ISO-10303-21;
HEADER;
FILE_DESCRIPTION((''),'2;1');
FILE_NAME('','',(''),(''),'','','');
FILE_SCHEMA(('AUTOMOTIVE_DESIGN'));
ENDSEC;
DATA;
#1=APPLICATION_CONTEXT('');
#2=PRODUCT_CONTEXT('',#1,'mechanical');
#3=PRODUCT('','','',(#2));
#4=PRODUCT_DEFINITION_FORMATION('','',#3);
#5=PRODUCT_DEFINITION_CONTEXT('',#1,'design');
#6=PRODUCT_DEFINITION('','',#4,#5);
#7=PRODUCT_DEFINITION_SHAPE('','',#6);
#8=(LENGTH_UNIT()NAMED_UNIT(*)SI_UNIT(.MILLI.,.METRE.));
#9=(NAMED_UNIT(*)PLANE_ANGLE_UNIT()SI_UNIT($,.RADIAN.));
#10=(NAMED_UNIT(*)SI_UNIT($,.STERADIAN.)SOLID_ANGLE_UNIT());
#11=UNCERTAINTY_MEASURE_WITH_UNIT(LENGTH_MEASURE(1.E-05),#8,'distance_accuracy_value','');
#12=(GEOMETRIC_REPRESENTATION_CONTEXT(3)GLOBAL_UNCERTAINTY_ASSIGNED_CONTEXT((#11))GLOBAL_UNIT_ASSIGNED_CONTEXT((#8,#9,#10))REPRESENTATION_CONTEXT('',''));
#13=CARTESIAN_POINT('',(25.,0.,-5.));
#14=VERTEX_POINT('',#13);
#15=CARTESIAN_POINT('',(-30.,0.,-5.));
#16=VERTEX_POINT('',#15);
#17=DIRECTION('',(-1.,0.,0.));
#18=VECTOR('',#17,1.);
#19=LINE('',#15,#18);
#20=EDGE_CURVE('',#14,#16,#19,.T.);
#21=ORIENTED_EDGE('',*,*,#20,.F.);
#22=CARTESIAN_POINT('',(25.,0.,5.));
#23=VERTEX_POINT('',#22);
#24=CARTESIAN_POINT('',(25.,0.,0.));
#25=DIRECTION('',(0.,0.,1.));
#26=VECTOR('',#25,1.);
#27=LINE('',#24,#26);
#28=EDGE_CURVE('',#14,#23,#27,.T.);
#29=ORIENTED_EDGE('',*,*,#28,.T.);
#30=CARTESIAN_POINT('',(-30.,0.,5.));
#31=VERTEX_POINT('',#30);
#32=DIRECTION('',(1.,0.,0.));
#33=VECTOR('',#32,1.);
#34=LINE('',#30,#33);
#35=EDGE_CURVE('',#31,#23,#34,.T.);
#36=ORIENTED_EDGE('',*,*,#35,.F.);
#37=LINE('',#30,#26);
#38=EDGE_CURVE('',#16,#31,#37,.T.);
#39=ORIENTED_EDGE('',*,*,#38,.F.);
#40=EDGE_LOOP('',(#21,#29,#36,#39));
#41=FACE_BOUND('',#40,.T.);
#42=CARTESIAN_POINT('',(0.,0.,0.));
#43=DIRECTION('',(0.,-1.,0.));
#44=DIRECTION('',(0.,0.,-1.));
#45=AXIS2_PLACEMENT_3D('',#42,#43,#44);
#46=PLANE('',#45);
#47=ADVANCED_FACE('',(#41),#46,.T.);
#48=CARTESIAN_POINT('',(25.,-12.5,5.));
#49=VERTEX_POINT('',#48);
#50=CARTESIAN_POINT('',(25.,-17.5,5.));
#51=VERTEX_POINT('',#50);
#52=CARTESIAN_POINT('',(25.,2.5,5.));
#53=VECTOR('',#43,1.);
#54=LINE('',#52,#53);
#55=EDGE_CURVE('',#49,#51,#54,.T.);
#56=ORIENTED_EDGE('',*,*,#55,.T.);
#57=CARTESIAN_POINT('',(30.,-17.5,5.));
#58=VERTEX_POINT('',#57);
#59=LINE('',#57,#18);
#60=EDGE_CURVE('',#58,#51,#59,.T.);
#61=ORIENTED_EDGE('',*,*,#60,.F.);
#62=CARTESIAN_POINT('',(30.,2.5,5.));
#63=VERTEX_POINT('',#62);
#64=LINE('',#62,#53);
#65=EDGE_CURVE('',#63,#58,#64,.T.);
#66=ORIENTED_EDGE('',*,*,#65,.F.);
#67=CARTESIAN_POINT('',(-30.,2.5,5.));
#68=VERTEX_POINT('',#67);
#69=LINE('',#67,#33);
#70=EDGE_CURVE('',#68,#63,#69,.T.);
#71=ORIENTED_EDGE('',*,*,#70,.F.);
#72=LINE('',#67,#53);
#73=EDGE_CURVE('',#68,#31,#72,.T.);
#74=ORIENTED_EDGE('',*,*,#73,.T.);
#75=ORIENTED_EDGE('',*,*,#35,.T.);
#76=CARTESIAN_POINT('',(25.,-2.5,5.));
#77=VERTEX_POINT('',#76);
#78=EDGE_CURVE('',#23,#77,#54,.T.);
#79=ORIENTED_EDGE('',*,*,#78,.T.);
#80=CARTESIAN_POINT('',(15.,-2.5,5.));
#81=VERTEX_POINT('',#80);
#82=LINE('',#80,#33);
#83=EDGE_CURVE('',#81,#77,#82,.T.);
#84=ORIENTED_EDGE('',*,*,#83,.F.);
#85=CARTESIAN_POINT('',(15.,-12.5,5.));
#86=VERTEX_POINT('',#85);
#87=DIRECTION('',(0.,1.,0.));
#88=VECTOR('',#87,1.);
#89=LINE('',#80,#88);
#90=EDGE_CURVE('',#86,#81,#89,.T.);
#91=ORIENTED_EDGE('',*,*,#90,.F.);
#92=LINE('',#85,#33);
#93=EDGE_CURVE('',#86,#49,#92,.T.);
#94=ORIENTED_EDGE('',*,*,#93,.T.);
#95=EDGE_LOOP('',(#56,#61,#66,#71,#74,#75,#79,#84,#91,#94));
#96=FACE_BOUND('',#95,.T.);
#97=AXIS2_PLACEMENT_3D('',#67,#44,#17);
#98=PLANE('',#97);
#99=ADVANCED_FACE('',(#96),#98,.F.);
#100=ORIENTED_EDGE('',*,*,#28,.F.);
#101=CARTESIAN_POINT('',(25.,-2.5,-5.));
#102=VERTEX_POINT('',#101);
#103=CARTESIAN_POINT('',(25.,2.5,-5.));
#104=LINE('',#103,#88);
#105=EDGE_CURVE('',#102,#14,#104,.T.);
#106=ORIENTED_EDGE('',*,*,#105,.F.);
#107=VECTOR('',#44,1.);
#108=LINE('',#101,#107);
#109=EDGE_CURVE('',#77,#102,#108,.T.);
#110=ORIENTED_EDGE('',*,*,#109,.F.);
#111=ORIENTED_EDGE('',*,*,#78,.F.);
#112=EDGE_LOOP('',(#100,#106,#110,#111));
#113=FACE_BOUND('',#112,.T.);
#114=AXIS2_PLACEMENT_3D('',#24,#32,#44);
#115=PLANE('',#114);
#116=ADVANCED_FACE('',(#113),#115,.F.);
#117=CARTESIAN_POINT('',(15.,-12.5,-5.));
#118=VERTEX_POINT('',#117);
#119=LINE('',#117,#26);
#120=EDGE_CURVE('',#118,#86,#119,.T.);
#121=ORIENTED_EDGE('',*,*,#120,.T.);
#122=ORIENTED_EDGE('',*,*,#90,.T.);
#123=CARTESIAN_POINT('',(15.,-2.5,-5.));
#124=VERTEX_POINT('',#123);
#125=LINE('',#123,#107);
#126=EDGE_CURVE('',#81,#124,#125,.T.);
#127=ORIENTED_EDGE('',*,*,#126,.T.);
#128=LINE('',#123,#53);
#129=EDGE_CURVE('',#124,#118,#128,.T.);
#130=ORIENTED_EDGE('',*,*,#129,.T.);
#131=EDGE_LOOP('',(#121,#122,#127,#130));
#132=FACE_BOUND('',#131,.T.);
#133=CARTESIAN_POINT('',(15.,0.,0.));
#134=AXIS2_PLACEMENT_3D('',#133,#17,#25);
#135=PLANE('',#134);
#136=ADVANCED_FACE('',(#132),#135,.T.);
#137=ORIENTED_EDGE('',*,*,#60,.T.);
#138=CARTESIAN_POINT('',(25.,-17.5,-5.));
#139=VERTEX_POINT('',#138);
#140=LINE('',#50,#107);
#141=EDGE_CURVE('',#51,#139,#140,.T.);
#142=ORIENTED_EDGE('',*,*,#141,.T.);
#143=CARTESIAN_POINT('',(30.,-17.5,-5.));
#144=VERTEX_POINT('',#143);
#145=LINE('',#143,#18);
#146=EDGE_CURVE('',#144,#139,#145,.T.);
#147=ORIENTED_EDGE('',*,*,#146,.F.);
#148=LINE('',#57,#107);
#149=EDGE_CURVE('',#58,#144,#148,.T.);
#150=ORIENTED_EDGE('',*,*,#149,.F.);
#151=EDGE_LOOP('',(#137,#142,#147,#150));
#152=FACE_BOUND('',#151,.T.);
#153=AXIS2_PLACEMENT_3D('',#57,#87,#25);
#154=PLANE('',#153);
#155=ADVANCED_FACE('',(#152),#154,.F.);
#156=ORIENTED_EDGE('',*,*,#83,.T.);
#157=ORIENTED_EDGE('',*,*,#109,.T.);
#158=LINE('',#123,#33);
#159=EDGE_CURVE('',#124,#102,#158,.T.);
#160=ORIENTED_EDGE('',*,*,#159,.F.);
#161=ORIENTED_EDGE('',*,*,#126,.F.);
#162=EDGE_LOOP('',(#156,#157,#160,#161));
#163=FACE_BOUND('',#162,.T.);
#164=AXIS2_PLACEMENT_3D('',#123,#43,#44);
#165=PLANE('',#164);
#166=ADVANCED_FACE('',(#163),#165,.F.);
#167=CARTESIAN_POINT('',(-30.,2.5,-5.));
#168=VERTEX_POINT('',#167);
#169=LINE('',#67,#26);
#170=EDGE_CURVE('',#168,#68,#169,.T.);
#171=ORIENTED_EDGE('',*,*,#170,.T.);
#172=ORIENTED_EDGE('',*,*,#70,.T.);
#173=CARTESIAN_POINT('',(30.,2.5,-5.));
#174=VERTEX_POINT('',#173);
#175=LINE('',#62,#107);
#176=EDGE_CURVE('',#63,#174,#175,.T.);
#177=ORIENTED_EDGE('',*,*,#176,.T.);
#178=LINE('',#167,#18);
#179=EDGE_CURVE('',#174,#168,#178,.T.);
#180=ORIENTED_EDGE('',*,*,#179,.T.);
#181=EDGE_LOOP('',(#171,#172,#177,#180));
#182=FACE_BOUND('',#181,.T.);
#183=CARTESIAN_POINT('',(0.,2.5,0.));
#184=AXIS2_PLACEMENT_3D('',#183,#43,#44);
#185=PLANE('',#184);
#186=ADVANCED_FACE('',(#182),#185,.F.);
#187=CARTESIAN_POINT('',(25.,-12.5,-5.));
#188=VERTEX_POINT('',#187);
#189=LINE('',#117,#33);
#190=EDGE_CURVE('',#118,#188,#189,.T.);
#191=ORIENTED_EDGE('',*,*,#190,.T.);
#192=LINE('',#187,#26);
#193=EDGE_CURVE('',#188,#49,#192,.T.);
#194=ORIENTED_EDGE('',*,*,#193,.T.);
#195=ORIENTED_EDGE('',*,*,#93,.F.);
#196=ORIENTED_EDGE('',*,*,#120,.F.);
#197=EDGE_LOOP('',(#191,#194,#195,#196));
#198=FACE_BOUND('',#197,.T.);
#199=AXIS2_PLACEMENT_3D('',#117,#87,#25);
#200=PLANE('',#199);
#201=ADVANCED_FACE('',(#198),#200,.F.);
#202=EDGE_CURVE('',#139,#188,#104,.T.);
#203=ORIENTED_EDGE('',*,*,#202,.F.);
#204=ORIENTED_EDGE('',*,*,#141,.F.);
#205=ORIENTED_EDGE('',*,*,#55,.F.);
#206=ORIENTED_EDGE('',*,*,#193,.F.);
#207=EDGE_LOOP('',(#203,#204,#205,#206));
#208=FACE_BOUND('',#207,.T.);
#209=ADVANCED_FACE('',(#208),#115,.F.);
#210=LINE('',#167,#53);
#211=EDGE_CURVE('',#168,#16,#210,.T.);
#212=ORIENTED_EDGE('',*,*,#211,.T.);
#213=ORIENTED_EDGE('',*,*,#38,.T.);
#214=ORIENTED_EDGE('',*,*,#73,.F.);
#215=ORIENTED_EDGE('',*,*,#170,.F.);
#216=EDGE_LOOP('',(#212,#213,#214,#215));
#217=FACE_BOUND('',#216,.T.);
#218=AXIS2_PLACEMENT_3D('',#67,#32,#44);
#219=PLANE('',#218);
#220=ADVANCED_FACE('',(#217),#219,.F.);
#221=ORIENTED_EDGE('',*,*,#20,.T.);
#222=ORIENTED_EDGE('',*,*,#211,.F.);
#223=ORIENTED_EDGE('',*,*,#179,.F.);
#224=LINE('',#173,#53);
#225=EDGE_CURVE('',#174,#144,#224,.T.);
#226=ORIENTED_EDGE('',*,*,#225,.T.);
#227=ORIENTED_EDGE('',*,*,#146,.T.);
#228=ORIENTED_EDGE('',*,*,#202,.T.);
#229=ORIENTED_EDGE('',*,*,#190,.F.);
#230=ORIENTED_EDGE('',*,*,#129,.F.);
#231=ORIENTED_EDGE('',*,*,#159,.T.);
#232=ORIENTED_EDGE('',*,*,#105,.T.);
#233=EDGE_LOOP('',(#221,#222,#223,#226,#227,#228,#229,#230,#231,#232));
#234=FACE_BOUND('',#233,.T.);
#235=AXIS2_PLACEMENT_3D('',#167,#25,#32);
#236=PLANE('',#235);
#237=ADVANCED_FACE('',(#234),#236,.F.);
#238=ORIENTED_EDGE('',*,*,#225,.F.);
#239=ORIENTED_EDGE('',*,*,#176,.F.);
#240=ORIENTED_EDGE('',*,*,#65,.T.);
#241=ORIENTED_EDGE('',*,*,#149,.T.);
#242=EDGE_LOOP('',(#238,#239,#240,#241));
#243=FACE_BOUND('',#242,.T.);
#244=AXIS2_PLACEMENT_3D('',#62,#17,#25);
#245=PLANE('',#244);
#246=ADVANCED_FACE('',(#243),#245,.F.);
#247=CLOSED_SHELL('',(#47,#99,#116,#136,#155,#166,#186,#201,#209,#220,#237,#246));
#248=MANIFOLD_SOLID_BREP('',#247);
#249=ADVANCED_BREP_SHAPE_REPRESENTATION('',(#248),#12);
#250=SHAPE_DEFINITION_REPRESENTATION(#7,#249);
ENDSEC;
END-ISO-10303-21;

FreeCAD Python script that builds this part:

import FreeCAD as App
import Part
import Sketcher

V = App.Vector

doc = App.newDocument("Part")
body = doc.addObject("PartDesign::Body", "Body")

sketch1 = doc.addObject("Sketcher::SketchObject", "Sketch")
body.addObject(sketch1)
sketch1.AttachmentSupport = (doc.XZ_Plane, [""])
sketch1.MapMode = "FlatFace"
sketch1.addGeometry([
    Part.LineSegment(V(-30, -5, 0), V(-30, 5, 0)),
    Part.LineSegment(V(-30, 5, 0), V(30, 5, 0)),
    Part.LineSegment(V(30, 5, 0), V(30, -5, 0)),
    Part.LineSegment(V(30, -5, 0), V(-30, -5, 0)),
], False)
sketch1.addConstraint([
    Sketcher.Constraint("Coincident", 0, 2, 1, 1),
    Sketcher.Constraint("Coincident", 1, 2, 2, 1),
    Sketcher.Constraint("Coincident", 2, 2, 3, 1),
    Sketcher.Constraint("Coincident", 3, 2, 0, 1),
    Sketcher.Constraint("Vertical", 0),
    Sketcher.Constraint("Horizontal", 1),
    Sketcher.Constraint("Vertical", 2),
    Sketcher.Constraint("Horizontal", 3),
    Sketcher.Constraint("Symmetric", 0, 2, 2, 2, -1, 1),
    Sketcher.Constraint("DistanceX", 1, 1, 1, 2, 60.0),
    Sketcher.Constraint("DistanceY", 0, 1, 0, 2, 10.0),
])
pad1 = doc.addObject("PartDesign::Pad", "Pad")
body.addObject(pad1)
pad1.Profile = sketch1
pad1.Length = 2.5
pad1.Reversed = True

sketch2 = doc.addObject("Sketcher::SketchObject", "Sketch001")
body.addObject(sketch2)
sketch2.AttachmentSupport = (doc.YZ_Plane, [""])
sketch2.MapMode = "FlatFace"
sketch2.AttachmentOffset = App.Placement(V(0, 0, 25), App.Rotation())
sketch2.addGeometry([
    Part.LineSegment(V(2, 5, 0), V(-18, 5, 0)),
    Part.LineSegment(V(-18, 5, 0), V(-18, -5, 0)),
    Part.LineSegment(V(-18, -5, 0), V(2, -5, 0)),
    Part.LineSegment(V(2, -5, 0), V(2, 5, 0)),
], False)
sketch2.addConstraint([
    Sketcher.Constraint("Coincident", 0, 2, 1, 1),
    Sketcher.Constraint("Coincident", 1, 2, 2, 1),
    Sketcher.Constraint("Coincident", 2, 2, 3, 1),
    Sketcher.Constraint("Coincident", 3, 2, 0, 1),
    Sketcher.Constraint("Horizontal", 0),
    Sketcher.Constraint("Vertical", 1),
    Sketcher.Constraint("Horizontal", 2),
    Sketcher.Constraint("Vertical", 3),
    Sketcher.Constraint("DistanceX", 0, 2, 0, 1, 20.0),
    Sketcher.Constraint("DistanceY", 1, 2, 1, 1, 10.0),
    Sketcher.Constraint("DistanceY", -1, 1, 0, 2, 5.0),
    Sketcher.Constraint("DistanceX", 0, 2, -1, 1, 17.5),
])
pad2 = doc.addObject("PartDesign::Pad", "Pad001")
body.addObject(pad2)
pad2.Profile = sketch2
pad2.Length = 5

sketch3 = doc.addObject("Sketcher::SketchObject", "Sketch002")
body.addObject(sketch3)
sketch3.AttachmentSupport = (doc.YZ_Plane, [""])
sketch3.MapMode = "FlatFace"
sketch3.AttachmentOffset = App.Placement(V(0, 0, 25), App.Rotation())
sketch3.addGeometry([
    Part.LineSegment(V(-2, -5, 0), V(-12, -5, 0)),
    Part.LineSegment(V(-12, -5, 0), V(-12, 5, 0)),
    Part.LineSegment(V(-12, 5, 0), V(-2, 5, 0)),
    Part.LineSegment(V(-2, 5, 0), V(-2, -5, 0)),
], False)
sketch3.addConstraint([
    Sketcher.Constraint("Coincident", 0, 2, 1, 1),
    Sketcher.Constraint("Coincident", 1, 2, 2, 1),
    Sketcher.Constraint("Coincident", 2, 2, 3, 1),
    Sketcher.Constraint("Coincident", 3, 2, 0, 1),
    Sketcher.Constraint("Horizontal", 0),
    Sketcher.Constraint("Vertical", 1),
    Sketcher.Constraint("Horizontal", 2),
    Sketcher.Constraint("Vertical", 3),
    Sketcher.Constraint("Equal", 2, 1),
    Sketcher.Constraint("DistanceX", 0, 2, 0, 1, 10.0),
    Sketcher.Constraint("DistanceY", 0, 2, -1, 1, 5.0),
    Sketcher.Constraint("DistanceX", 0, 2, -1, 1, 12.5),
])
pad3 = doc.addObject("PartDesign::Pad", "Pad002")
body.addObject(pad3)
pad3.Profile = sketch3
pad3.Length = 10
pad3.Reversed = True

doc.recompute()
